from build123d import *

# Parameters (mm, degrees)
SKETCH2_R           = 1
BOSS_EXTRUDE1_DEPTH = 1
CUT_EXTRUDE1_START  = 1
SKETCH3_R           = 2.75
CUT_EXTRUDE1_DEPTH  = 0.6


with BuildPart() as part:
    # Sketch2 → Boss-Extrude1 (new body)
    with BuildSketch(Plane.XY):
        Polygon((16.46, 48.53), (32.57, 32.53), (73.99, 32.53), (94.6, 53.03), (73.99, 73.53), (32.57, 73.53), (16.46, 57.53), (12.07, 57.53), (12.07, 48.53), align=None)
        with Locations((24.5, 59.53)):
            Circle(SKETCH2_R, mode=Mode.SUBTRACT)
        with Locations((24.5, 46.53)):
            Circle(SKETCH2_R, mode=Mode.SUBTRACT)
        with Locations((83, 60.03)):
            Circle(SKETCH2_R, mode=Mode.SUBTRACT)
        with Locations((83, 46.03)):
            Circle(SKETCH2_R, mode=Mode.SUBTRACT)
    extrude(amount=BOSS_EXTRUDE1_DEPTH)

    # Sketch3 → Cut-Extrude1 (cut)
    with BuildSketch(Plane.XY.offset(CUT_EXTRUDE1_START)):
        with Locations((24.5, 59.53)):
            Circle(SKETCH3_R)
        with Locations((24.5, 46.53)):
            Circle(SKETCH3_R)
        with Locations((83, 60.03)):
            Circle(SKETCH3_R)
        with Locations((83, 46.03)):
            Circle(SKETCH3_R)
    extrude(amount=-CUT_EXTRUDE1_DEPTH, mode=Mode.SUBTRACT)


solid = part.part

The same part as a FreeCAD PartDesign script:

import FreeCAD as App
import Part
import Sketcher
Q = App.Units.Quantity

doc = App.newDocument("Part")
params = doc.addObject("Spreadsheet::Sheet", "Params")
for row, (alias, value) in enumerate([
    ("sketch1_diameter", "2 mm"),
    ("sketch1_height", "9 mm"),
    ("sketch1_width", "41.42 mm"),
    ("sketch1_width2", "4.39 mm"),
    ("pad1_length", "1 mm"),
    ("sketch2_diameter", "5.5 mm"),
    ("pocket1_length", "0.6 mm"),
], start=1):
    params.set(f"A{row}", alias)
    params.set(f"B{row}", "=" + value)
    params.setAlias(f"B{row}", alias)

body = doc.addObject("PartDesign::Body", "Body")

# Sketch on XY plane
sketch1 = body.newObject("Sketcher::SketchObject", "Sketch")
sketch1.AttachmentSupport = (doc.getObject("XY_Plane"), [""])
sketch1.MapMode = "FlatFace"
sketch1.addGeometry(Part.LineSegment(App.Vector(16.5, 48.5, 0), App.Vector(32.6, 32.5, 0)), False)
sketch1.addGeometry(Part.LineSegment(App.Vector(32.6, 32.5, 0), App.Vector(74, 32.5, 0)), False)
sketch1.addGeometry(Part.LineSegment(App.Vector(74, 32.5, 0), App.Vector(94.6, 53, 0)), False)
sketch1.addGeometry(Part.LineSegment(App.Vector(94.6, 53, 0), App.Vector(74, 73.5, 0)), False)
sketch1.addGeometry(Part.LineSegment(App.Vector(74, 73.5, 0), App.Vector(32.6, 73.5, 0)), False)
sketch1.addGeometry(Part.LineSegment(App.Vector(32.6, 73.5, 0), App.Vector(16.5, 57.5, 0)), False)
sketch1.addGeometry(Part.LineSegment(App.Vector(16.5, 57.5, 0), App.Vector(12.1, 57.5, 0)), False)
sketch1.addGeometry(Part.LineSegment(App.Vector(12.1, 57.5, 0), App.Vector(12.1, 48.5, 0)), False)
sketch1.addGeometry(Part.LineSegment(App.Vector(12.1, 48.5, 0), App.Vector(16.5, 48.5, 0)), False)
sketch1.addGeometry(Part.Circle(App.Vector(24.5, 46.5, 0), App.Vector(0, 0, 1), 1), False)
sketch1.addGeometry(Part.Circle(App.Vector(83, 46, 0), App.Vector(0, 0, 1), 1), False)
sketch1.addGeometry(Part.Circle(App.Vector(24.5, 59.5, 0), App.Vector(0, 0, 1), 1), False)
sketch1.addGeometry(Part.Circle(App.Vector(83, 60, 0), App.Vector(0, 0, 1), 1), False)
sketch1.addConstraint(Sketcher.Constraint("Coincident", 0, 2, 1, 1))
sketch1.addConstraint(Sketcher.Constraint("Coincident", 1, 2, 2, 1))
sketch1.addConstraint(Sketcher.Constraint("Coincident", 2, 2, 3, 1))
sketch1.addConstraint(Sketcher.Constraint("Coincident", 3, 2, 4, 1))
sketch1.addConstraint(Sketcher.Constraint("Coincident", 4, 2, 5, 1))
sketch1.addConstraint(Sketcher.Constraint("Coincident", 5, 2, 6, 1))
sketch1.addConstraint(Sketcher.Constraint("Coincident", 6, 2, 7, 1))
sketch1.addConstraint(Sketcher.Constraint("Coincident", 7, 2, 8, 1))
sketch1.addConstraint(Sketcher.Constraint("Coincident", 8, 2, 0, 1))
sketch1.addConstraint(Sketcher.Constraint("Horizontal", 1))
sketch1.addConstraint(Sketcher.Constraint("Horizontal", 4))
sketch1.addConstraint(Sketcher.Constraint("Horizontal", 6))
sketch1.addConstraint(Sketcher.Constraint("Vertical", 7))
sketch1.addConstraint(Sketcher.Constraint("Horizontal", 8))
sketch1.addConstraint(Sketcher.Constraint("Equal", 9, 10))
sketch1.addConstraint(Sketcher.Constraint("Equal", 10, 11))
sketch1.addConstraint(Sketcher.Constraint("Equal", 11, 12))
sketch1.addConstraint(Sketcher.Constraint("Vertical", 9, 3, 11, 3))
sketch1.addConstraint(Sketcher.Constraint("Vertical", 10, 3, 12, 3))
sketch1.addConstraint(Sketcher.Constraint("Vertical", 1, 2, 3, 2))
sketch1.addConstraint(Sketcher.Constraint("Vertical", 0, 2, 4, 2))
sketch1.addConstraint(Sketcher.Constraint("Vertical", 5, 2, 8, 2))
sketch1.addConstraint(Sketcher.Constraint("Equal", 2, 3))
sketch1.addConstraint(Sketcher.Constraint("Equal", 0, 5))
sketch1.addConstraint(Sketcher.Constraint("Diameter", 9, Q("2 mm")))
sketch1.addConstraint(Sketcher.Constraint("DistanceY", 7, 2, 7, 1, Q("9 mm")))
sketch1.addConstraint(Sketcher.Constraint("DistanceX", -1, 1, 10, 3, Q("83 mm")))
sketch1.addConstraint(Sketcher.Constraint("DistanceY", 9, 3, 11, 3, Q("13 mm")))
sketch1.addConstraint(Sketcher.Constraint("DistanceY", 10, 3, 12, 3, Q("14 mm")))
sketch1.addConstraint(Sketcher.Constraint("DistanceY", 0, 2, 9, 3, Q("14 mm")))
sketch1.addConstraint(Sketcher.Constraint("DistanceY", 10, 3, 2, 2, Q("7 mm")))
sketch1.addConstraint(Sketcher.Constraint("DistanceY", 1, 2, 3, 2, Q("41 mm")))
sketch1.addConstraint(Sketcher.Constraint("DistanceX", 1, 1, 1, 2, Q("41.42 mm")))
sketch1.addConstraint(Sketcher.Constraint("DistanceX", 6, 2, 6, 1, Q("4.39 mm")))
sketch1.addConstraint(Sketcher.Constraint("DistanceX", -1, 1, 9, 3, Q("24.5 mm")))
sketch1.addConstraint(Sketcher.Constraint("DistanceX", -1, 1, 2, 2, Q("94.6 mm")))
sketch1.addConstraint(Sketcher.Constraint("DistanceX", 6, 2, 4, 2, Q("20.5 mm")))
sketch1.addConstraint(Sketcher.Constraint("DistanceY", -1, 1, 9, 3, Q("46.53 mm")))
sketch1.addConstraint(Sketcher.Constraint("DistanceX", -1, 1, 0, 2, Q("32.57 mm")))
sketch1.setExpression("Constraints[24]", "Params.sketch1_diameter")
sketch1.setExpression("Constraints[25]", "Params.sketch1_height")
sketch1.setExpression("Constraints[32]", "Params.sketch1_width")
sketch1.setExpression("Constraints[33]", "Params.sketch1_width2")
pad1 = body.newObject("PartDesign::Pad", "Pad")
pad1.Profile = sketch1
pad1.setExpression("Length", "Params.pad1_length")

# Sketch on XY plane
sketch2 = body.newObject("Sketcher::SketchObject", "Sketch001")
sketch2.AttachmentSupport = (doc.getObject("XY_Plane"), [""])
sketch2.MapMode = "FlatFace"
sketch2.AttachmentOffset = App.Placement(App.Vector(0, 0, 1), App.Rotation())
sketch2.addGeometry(Part.Circle(App.Vector(24.5, 59.5, 0), App.Vector(0, 0, 1), 2.8), False)
sketch2.addGeometry(Part.Circle(App.Vector(24.5, 46.5, 0), App.Vector(0, 0, 1), 2.8), False)
sketch2.addGeometry(Part.Circle(App.Vector(83, 60, 0), App.Vector(0, 0, 1), 2.8), False)
sketch2.addGeometry(Part.Circle(App.Vector(83, 46, 0), App.Vector(0, 0, 1), 2.8), False)
sketch2.addConstraint(Sketcher.Constraint("Equal", 0, 1))
sketch2.addConstraint(Sketcher.Constraint("Equal", 1, 2))
sketch2.addConstraint(Sketcher.Constraint("Equal", 2, 3))
sketch2.addConstraint(Sketcher.Constraint("Vertical", 0, 3, 1, 3))
sketch2.addConstraint(Sketcher.Constraint("Vertical", 2, 3, 3, 3))
sketch2.addConstraint(Sketcher.Constraint("Diameter", 0, Q("5.5 mm")))
sketch2.addConstraint(Sketcher.Constraint("DistanceX", -1, 1, 2, 3, Q("83 mm")))
sketch2.addConstraint(Sketcher.Constraint("DistanceY", 1, 3, 0, 3, Q("13 mm")))
sketch2.addConstraint(Sketcher.Constraint("DistanceY", 3, 3, 2, 3, Q("14 mm")))
sketch2.addConstraint(Sketcher.Constraint("DistanceX", -1, 1, 0, 3, Q("24.5 mm")))
sketch2.addConstraint(Sketcher.Constraint("DistanceY", 0, 3, 2, 3, Q("0.5 mm")))
sketch2.addConstraint(Sketcher.Constraint("DistanceY", -1, 1, 0, 3, Q("59.53 mm")))
sketch2.setExpression("Constraints[5]", "Params.sketch2_diameter")
pocket1 = body.newObject("PartDesign::Pocket", "Pocket")
pocket1.Profile = sketch2
pocket1.setExpression("Length", "Params.pocket1_length")

doc.recompute()
